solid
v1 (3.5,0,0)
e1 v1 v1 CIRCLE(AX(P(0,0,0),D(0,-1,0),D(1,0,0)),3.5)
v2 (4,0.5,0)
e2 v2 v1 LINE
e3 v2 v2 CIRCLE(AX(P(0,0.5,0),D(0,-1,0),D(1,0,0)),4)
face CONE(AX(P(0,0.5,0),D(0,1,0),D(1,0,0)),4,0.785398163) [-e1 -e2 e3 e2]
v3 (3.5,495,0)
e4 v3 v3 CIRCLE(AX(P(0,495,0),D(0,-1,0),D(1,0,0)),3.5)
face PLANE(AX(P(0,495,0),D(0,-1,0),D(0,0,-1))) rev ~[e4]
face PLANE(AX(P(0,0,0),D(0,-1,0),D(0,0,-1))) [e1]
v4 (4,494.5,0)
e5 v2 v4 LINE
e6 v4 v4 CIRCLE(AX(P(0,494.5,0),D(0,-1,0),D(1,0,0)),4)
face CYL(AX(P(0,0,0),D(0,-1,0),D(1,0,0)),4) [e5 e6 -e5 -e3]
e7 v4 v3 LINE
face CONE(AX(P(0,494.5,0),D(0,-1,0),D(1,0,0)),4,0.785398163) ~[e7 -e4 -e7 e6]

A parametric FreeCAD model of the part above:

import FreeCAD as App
import Part
import Sketcher
from FreeCAD import Vector


def edges_at(feature, points):
    """Names of the edges that pass closest to the given points."""
    edges = feature.Shape.Edges
    near = lambda p: min(range(len(edges)), key=lambda i: edges[i].distToShape(Part.Vertex(*p))[0])
    return sorted({f"Edge{near(p) + 1}" for p in points})

doc = App.newDocument("Part")
body = doc.addObject("PartDesign::Body", "Body")

sketch1 = body.newObject("Sketcher::SketchObject", "Sketch")
sketch1.AttachmentSupport = (doc.getObject("XZ_Plane"), [""])
sketch1.MapMode = "FlatFace"
sketch1.addGeometry(Part.Circle(Vector(0, 0, 0), Vector(0, 0, 1), 4), False)
sketch1.addConstraint([
    Sketcher.Constraint("Coincident", 0, 3, -1, 1),
    Sketcher.Constraint("Diameter", 0, 8.0),
])
pad1 = body.newObject("PartDesign::Pad", "Pad")
pad1.Profile = sketch1
pad1.Length = 495
pad1.Reversed = True
doc.recompute()

chamfer = body.newObject("PartDesign::Chamfer", "Chamfer")
chamfer.Base = (pad1, edges_at(pad1, [(-4, 0, 0), (-4, 495, 0)]))
chamfer.Size = 0.5

doc.recompute()
